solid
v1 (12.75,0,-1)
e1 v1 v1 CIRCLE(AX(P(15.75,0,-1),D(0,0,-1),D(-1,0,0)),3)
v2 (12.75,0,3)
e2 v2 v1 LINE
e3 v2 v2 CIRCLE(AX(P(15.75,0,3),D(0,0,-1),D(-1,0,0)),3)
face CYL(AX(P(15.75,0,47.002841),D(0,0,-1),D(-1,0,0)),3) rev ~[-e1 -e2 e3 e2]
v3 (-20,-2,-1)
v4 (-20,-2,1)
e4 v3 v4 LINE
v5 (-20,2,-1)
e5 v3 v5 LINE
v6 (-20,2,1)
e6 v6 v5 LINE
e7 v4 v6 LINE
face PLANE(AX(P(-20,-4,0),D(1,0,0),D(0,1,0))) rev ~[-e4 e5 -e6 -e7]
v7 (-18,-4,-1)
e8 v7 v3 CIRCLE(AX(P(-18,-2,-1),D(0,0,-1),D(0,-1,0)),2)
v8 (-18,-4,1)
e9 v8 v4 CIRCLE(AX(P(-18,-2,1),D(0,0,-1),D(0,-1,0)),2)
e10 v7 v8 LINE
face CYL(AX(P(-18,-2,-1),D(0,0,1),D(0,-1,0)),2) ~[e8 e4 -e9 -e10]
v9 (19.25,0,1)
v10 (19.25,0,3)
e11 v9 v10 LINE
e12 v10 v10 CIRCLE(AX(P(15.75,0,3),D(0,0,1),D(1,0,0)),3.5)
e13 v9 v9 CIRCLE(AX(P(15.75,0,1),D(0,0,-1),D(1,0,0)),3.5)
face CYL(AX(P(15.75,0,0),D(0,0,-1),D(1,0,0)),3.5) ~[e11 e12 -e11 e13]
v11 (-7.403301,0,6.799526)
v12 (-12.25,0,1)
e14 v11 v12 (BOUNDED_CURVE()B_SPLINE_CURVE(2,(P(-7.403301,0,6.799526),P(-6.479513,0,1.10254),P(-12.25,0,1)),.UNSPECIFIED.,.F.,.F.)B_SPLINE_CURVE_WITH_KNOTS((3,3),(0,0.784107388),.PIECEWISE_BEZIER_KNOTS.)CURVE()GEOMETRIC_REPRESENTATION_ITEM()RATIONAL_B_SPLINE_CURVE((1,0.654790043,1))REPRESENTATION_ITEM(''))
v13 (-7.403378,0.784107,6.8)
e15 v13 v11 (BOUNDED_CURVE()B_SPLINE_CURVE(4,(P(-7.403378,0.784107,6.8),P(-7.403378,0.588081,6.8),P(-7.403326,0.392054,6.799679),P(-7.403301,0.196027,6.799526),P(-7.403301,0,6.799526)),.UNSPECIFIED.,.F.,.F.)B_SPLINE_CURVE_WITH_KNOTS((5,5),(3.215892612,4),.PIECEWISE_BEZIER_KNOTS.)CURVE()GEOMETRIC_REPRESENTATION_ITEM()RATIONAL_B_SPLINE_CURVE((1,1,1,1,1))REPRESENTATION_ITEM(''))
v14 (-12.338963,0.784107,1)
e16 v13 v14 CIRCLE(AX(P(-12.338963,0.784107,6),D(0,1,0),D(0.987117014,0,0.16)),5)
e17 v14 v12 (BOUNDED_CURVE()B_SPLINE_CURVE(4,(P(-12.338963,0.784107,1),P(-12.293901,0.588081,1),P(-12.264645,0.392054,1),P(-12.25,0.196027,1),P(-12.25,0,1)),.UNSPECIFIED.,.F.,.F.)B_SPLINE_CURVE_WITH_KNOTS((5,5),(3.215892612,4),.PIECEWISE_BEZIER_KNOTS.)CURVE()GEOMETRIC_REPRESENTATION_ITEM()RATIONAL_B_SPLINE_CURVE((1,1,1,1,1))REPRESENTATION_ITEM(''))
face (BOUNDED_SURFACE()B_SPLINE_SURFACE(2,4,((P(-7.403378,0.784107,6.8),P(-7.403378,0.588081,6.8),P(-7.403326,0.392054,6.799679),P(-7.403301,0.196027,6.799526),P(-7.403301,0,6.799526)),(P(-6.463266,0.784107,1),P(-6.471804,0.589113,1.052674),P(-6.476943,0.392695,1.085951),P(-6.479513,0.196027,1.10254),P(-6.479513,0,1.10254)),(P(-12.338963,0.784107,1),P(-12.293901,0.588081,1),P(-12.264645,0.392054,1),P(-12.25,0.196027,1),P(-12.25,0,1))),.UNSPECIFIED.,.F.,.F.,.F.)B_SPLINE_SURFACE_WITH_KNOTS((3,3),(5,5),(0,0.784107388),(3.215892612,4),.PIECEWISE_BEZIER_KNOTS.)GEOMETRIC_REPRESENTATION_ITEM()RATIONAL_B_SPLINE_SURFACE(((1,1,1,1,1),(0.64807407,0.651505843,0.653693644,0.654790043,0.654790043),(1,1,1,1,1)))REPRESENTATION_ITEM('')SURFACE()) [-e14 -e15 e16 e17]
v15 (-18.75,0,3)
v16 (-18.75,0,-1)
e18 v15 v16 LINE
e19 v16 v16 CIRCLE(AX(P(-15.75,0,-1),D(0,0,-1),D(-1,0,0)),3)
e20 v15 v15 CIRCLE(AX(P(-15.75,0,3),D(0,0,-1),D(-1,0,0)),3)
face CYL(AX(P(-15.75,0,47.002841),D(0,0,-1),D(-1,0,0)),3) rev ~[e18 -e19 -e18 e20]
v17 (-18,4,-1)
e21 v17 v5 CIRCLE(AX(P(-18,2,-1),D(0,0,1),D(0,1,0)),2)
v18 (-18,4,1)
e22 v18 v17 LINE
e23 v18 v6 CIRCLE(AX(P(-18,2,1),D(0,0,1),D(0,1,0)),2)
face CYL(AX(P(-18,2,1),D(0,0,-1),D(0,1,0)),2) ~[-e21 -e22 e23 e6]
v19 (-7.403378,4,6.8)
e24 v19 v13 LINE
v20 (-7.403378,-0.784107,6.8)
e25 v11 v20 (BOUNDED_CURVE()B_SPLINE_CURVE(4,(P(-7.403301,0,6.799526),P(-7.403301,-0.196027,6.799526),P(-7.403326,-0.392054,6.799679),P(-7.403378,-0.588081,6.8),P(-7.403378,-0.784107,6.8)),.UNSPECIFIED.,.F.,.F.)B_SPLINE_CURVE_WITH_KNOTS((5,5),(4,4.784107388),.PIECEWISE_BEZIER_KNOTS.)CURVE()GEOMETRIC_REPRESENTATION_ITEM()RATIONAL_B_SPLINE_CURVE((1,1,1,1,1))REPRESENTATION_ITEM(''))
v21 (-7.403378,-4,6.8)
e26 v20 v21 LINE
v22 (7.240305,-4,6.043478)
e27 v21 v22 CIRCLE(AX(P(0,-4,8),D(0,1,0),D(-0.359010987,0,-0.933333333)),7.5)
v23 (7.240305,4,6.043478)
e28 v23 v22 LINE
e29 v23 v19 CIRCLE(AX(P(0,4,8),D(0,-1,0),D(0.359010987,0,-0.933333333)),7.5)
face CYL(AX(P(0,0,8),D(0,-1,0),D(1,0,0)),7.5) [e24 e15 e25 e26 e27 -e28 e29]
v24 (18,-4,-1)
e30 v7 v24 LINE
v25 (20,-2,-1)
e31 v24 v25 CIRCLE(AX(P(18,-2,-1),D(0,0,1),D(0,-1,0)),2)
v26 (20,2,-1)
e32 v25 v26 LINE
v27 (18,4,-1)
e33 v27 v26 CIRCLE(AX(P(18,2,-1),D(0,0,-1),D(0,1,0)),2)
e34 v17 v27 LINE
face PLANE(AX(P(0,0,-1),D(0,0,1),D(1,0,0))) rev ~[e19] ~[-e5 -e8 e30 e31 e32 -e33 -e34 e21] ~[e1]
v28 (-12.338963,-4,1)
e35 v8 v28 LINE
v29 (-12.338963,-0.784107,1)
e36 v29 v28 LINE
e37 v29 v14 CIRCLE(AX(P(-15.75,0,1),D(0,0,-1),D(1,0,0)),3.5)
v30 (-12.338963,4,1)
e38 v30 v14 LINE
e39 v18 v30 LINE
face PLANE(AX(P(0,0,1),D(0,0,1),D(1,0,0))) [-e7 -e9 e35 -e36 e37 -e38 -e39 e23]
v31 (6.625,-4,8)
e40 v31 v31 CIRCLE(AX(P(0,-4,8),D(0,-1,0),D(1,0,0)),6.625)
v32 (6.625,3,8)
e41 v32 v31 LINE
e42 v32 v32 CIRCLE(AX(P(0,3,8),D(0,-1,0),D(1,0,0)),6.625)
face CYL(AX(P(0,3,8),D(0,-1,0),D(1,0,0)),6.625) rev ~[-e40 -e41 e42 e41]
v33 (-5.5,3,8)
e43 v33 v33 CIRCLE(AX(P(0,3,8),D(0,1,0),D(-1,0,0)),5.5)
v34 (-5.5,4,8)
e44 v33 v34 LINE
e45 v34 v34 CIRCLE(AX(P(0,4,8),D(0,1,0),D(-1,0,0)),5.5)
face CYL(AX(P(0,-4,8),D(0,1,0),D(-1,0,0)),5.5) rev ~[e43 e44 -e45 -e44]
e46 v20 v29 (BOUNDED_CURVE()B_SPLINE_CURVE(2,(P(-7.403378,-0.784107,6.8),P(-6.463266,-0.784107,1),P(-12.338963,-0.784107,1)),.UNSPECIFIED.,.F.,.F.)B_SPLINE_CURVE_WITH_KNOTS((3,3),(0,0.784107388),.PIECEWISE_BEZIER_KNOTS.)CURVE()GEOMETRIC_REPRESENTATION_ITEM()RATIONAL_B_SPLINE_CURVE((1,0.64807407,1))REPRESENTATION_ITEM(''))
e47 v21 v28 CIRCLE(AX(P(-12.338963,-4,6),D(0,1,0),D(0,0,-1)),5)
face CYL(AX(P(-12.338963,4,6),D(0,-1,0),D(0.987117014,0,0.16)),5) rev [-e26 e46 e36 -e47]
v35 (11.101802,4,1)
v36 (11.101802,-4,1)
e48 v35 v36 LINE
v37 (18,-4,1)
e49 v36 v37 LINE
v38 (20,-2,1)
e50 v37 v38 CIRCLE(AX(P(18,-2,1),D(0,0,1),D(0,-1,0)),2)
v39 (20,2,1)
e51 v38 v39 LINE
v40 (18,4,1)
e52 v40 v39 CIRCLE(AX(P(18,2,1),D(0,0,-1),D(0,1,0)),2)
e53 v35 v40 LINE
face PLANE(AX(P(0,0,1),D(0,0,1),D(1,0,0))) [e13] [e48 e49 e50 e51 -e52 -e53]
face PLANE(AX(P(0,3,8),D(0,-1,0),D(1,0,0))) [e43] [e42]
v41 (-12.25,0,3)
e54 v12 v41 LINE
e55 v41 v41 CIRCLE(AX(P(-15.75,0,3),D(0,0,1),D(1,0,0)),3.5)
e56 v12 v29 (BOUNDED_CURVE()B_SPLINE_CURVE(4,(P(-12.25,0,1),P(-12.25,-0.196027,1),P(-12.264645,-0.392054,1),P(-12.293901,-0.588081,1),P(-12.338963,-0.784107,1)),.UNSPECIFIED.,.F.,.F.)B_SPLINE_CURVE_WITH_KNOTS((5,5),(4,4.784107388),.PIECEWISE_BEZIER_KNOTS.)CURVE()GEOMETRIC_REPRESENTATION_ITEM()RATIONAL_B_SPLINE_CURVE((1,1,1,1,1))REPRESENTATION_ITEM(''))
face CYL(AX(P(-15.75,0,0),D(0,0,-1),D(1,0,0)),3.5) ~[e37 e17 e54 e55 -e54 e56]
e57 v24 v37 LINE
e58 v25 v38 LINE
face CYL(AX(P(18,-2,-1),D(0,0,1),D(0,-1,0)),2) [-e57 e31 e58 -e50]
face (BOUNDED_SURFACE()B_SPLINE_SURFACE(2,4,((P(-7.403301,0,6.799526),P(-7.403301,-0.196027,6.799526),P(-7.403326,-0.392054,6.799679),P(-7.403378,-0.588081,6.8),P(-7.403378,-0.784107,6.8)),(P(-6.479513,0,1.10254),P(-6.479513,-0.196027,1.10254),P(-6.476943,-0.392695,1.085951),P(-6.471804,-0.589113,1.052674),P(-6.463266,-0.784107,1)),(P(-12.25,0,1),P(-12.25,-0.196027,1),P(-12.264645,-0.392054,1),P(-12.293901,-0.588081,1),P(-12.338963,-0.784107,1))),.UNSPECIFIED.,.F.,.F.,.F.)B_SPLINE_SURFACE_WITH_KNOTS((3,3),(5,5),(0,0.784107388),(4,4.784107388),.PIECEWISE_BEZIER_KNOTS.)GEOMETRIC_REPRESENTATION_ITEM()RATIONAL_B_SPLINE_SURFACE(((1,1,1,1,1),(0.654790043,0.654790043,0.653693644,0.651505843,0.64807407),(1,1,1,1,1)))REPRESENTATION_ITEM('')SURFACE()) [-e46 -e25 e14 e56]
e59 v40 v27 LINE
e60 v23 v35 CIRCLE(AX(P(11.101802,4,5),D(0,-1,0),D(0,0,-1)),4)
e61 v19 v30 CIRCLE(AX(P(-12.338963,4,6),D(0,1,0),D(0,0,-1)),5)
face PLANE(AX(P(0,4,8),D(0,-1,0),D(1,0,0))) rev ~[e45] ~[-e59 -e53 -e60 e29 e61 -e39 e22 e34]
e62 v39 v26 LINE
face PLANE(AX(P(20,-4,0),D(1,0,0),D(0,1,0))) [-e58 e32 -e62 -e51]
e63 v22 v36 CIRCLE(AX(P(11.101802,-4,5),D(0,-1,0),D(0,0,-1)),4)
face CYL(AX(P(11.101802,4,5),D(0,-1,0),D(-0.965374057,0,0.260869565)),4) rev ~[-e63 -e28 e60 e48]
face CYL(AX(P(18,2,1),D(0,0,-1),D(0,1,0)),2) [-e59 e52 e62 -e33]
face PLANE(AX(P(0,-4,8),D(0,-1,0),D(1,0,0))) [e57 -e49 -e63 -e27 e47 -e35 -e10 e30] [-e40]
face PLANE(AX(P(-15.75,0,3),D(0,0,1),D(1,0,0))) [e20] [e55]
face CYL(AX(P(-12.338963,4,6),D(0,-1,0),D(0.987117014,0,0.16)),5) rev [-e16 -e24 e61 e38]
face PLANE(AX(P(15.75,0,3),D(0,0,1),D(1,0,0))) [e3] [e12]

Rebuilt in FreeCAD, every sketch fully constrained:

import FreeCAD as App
import Part
import Sketcher


def edges_at(feature, points):
    """Names of the edges that pass closest to the given points."""
    edges = feature.Shape.Edges
    near = lambda p: min(range(len(edges)), key=lambda i: edges[i].distToShape(Part.Vertex(*p))[0])
    return sorted({f"Edge{near(p) + 1}" for p in points})

doc = App.newDocument("Part")
params = doc.addObject("Spreadsheet::Sheet", "Params")
for row, (alias, value) in enumerate([
    ("sketch1_width", "40 mm"),
    ("sketch1_height", "8 mm"),
    ("pad1_length", "2 mm"),
    ("sketch2_diameter", "7 mm"),
    ("pad2_length", "3 mm"),
    ("sketch3_diameter", "15 mm"),
    ("pad3_length", "8 mm"),
    ("fillet_radius", "4 mm"),
    ("fillet2_radius", "5 mm"),
    ("sketch4_diameter", "11 mm"),
    ("hole_diameter", "11 mm"),
    ("hole_cbore_diameter", "13.25 mm"),
    ("hole_cbore_depth", "7 mm"),
    ("sketch5_diameter", "6 mm"),
    ("hole2_diameter", "6 mm"),
    ("fillet3_radius", "2 mm"),
], start=1):
    params.set(f"A{row}", alias)
    params.set(f"B{row}", "=" + value)
    params.setAlias(f"B{row}", alias)

body = doc.addObject("PartDesign::Body", "Body")

# Sketch on XY plane
sketch1 = body.newObject("Sketcher::SketchObject", "Sketch")
sketch1.AttachmentSupport = (doc.getObject("XY_Plane"), [""])
sketch1.MapMode = "FlatFace"
sketch1.addGeometry(Part.LineSegment(App.Vector(-20, 4, 0), App.Vector(-20, -4, 0)), False)
sketch1.addGeometry(Part.LineSegment(App.Vector(-20, -4, 0), App.Vector(20, -4, 0)), False)
sketch1.addGeometry(Part.LineSegment(App.Vector(20, -4, 0), App.Vector(20, 4, 0)), False)
sketch1.addGeometry(Part.LineSegment(App.Vector(20, 4, 0), App.Vector(-20, 4, 0)), False)
sketch1.addConstraint(Sketcher.Constraint("Coincident", 0, 2, 1, 1))
sketch1.addConstraint(Sketcher.Constraint("Coincident", 1, 2, 2, 1))
sketch1.addConstraint(Sketcher.Constraint("Coincident", 2, 2, 3, 1))
sketch1.addConstraint(Sketcher.Constraint("Coincident", 3, 2, 0, 1))
sketch1.addConstraint(Sketcher.Constraint("Vertical", 0))
sketch1.addConstraint(Sketcher.Constraint("Horizontal", 1))
sketch1.addConstraint(Sketcher.Constraint("Vertical", 2))
sketch1.addConstraint(Sketcher.Constraint("Horizontal", 3))
sketch1.addConstraint(Sketcher.Constraint("Symmetric", 0, 2, 2, 2, -1, 1))
sketch1.addConstraint(Sketcher.Constraint("DistanceX", 1, 1, 1, 2, 40.0))
sketch1.addConstraint(Sketcher.Constraint("DistanceY", 0, 2, 0, 1, 8.0))
sketch1.setExpression("Constraints[9]", "Params.sketch1_width")
sketch1.setExpression("Constraints[10]", "Params.sketch1_height")
pad1 = body.newObject("PartDesign::Pad", "Pad")
pad1.Profile = sketch1
pad1.setExpression("Length", "Params.pad1_length")
pad1.Midplane = True

# Sketch on XY plane
sketch2 = body.newObject("Sketcher::SketchObject", "Sketch001")
sketch2.AttachmentSupport = (doc.getObject("XY_Plane"), [""])
sketch2.MapMode = "FlatFace"
sketch2.addGeometry(Part.Circle(App.Vector(-15.8, 0, 0), App.Vector(0, 0, 1), 3.5), False)
sketch2.addGeometry(Part.Circle(App.Vector(15.8, 0, 0), App.Vector(0, 0, 1), 3.5), False)
sketch2.addConstraint(Sketcher.Constraint("Equal", 0, 1))
sketch2.addConstraint(Sketcher.Constraint("Symmetric", 0, 3, 1, 3, -1, 1))
sketch2.addConstraint(Sketcher.Constraint("PointOnObject", 0, 3, -1))
sketch2.addConstraint(Sketcher.Constraint("Diameter", 0, 7.0))
sketch2.addConstraint(Sketcher.Constraint("DistanceX", 0, 3, 1, 3, 31.5))
sketch2.setExpression("Constraints[3]", "Params.sketch2_diameter")
pad2 = body.newObject("PartDesign::Pad", "Pad001")
pad2.Profile = sketch2
pad2.setExpression("Length", "Params.pad2_length")

# Sketch on XZ plane
sketch3 = body.newObject("Sketcher::SketchObject", "Sketch002")
sketch3.AttachmentSupport = (doc.getObject("XZ_Plane"), [""])
sketch3.MapMode = "FlatFace"
sketch3.addGeometry(Part.Circle(App.Vector(0, 8, 0), App.Vector(0, 0, 1), 8), False)
sketch3.addConstraint(Sketcher.Constraint("PointOnObject", 0, 3, -2))
sketch3.addConstraint(Sketcher.Constraint("Diameter", 0, 15.0))
sketch3.addConstraint(Sketcher.Constraint("DistanceY", -1, 1, 0, 3, 8.0))
sketch3.setExpression("Constraints[1]", "Params.sketch3_diameter")
pad3 = body.newObject("PartDesign::Pad", "Pad002")
pad3.Profile = sketch3
pad3.setExpression("Length", "Params.pad3_length")
pad3.Midplane = True
doc.recompute()

fillet = body.newObject("PartDesign::Fillet", "Fillet")
fillet.Base = (pad3, edges_at(pad3, [(2.693, 0, 1)]))
fillet.setExpression("Radius", "Params.fillet_radius")
doc.recompute()

fillet2 = body.newObject("PartDesign::Fillet", "Fillet001")
fillet2.Base = (fillet, edges_at(fillet, [(-2.693, 0, 1)]))
fillet2.setExpression("Radius", "Params.fillet2_radius")

# Sketch on XZ plane
sketch4 = body.newObject("Sketcher::SketchObject", "Sketch003")
sketch4.AttachmentSupport = (doc.getObject("XZ_Plane"), [""])
sketch4.MapMode = "FlatFace"
sketch4.AttachmentOffset = App.Placement(App.Vector(0, 0, 4), App.Rotation())
sketch4.addGeometry(Part.Circle(App.Vector(0, 8, 0), App.Vector(0, 0, 1), 6), False)
sketch4.addConstraint(Sketcher.Constraint("PointOnObject", 0, 3, -2))
sketch4.addConstraint(Sketcher.Constraint("Diameter", 0, 11.0))
sketch4.addConstraint(Sketcher.Constraint("DistanceY", -1, 1, 0, 3, 8.0))
sketch4.setExpression("Constraints[1]", "Params.sketch4_diameter")
doc.recompute()
hole = body.newObject("PartDesign::Hole", "Hole")
hole.Profile = sketch4
hole.ThreadType = "None"
hole.setExpression("Diameter", "Params.hole_diameter")
hole.DepthType = "ThroughAll"
hole.HoleCutType = "Counterbore"
hole.setExpression("HoleCutDiameter", "Params.hole_cbore_diameter")
hole.setExpression("HoleCutDepth", "Params.hole_cbore_depth")

# Sketch on XY plane
sketch5 = body.newObject("Sketcher::SketchObject", "Sketch004")
sketch5.AttachmentSupport = (doc.getObject("XY_Plane"), [""])
sketch5.MapMode = "FlatFace"
sketch5.AttachmentOffset = App.Placement(App.Vector(0, 0, 3), App.Rotation())
sketch5.addGeometry(Part.Circle(App.Vector(15.8, 0, 0), App.Vector(0, 0, 1), 3), False)
sketch5.addGeometry(Part.Circle(App.Vector(-15.8, 0, 0), App.Vector(0, 0, 1), 3), False)
sketch5.addConstraint(Sketcher.Constraint("Equal", 0, 1))
sketch5.addConstraint(Sketcher.Constraint("Symmetric", 0, 3, 1, 3, -1, 1))
sketch5.addConstraint(Sketcher.Constraint("PointOnObject", 0, 3, -1))
sketch5.addConstraint(Sketcher.Constraint("Diameter", 0, 6.0))
sketch5.addConstraint(Sketcher.Constraint("DistanceX", 1, 3, 0, 3, 31.5))
sketch5.setExpression("Constraints[3]", "Params.sketch5_diameter")
doc.recompute()
hole2 = body.newObject("PartDesign::Hole", "Hole001")
hole2.Profile = sketch5
hole2.ThreadType = "None"
hole2.setExpression("Diameter", "Params.hole2_diameter")
hole2.DepthType = "ThroughAll"
doc.recompute()

fillet3 = body.newObject("PartDesign::Fillet", "Fillet002")
fillet3.Base = (hole2, edges_at(hole2, [
    (-20, -4, 0),
    (-20, 4, 0),
    (20, 4, 0),
    (20, -4, 0),
]))
fillet3.setExpression("Radius", "Params.fillet3_radius")

doc.recompute()
